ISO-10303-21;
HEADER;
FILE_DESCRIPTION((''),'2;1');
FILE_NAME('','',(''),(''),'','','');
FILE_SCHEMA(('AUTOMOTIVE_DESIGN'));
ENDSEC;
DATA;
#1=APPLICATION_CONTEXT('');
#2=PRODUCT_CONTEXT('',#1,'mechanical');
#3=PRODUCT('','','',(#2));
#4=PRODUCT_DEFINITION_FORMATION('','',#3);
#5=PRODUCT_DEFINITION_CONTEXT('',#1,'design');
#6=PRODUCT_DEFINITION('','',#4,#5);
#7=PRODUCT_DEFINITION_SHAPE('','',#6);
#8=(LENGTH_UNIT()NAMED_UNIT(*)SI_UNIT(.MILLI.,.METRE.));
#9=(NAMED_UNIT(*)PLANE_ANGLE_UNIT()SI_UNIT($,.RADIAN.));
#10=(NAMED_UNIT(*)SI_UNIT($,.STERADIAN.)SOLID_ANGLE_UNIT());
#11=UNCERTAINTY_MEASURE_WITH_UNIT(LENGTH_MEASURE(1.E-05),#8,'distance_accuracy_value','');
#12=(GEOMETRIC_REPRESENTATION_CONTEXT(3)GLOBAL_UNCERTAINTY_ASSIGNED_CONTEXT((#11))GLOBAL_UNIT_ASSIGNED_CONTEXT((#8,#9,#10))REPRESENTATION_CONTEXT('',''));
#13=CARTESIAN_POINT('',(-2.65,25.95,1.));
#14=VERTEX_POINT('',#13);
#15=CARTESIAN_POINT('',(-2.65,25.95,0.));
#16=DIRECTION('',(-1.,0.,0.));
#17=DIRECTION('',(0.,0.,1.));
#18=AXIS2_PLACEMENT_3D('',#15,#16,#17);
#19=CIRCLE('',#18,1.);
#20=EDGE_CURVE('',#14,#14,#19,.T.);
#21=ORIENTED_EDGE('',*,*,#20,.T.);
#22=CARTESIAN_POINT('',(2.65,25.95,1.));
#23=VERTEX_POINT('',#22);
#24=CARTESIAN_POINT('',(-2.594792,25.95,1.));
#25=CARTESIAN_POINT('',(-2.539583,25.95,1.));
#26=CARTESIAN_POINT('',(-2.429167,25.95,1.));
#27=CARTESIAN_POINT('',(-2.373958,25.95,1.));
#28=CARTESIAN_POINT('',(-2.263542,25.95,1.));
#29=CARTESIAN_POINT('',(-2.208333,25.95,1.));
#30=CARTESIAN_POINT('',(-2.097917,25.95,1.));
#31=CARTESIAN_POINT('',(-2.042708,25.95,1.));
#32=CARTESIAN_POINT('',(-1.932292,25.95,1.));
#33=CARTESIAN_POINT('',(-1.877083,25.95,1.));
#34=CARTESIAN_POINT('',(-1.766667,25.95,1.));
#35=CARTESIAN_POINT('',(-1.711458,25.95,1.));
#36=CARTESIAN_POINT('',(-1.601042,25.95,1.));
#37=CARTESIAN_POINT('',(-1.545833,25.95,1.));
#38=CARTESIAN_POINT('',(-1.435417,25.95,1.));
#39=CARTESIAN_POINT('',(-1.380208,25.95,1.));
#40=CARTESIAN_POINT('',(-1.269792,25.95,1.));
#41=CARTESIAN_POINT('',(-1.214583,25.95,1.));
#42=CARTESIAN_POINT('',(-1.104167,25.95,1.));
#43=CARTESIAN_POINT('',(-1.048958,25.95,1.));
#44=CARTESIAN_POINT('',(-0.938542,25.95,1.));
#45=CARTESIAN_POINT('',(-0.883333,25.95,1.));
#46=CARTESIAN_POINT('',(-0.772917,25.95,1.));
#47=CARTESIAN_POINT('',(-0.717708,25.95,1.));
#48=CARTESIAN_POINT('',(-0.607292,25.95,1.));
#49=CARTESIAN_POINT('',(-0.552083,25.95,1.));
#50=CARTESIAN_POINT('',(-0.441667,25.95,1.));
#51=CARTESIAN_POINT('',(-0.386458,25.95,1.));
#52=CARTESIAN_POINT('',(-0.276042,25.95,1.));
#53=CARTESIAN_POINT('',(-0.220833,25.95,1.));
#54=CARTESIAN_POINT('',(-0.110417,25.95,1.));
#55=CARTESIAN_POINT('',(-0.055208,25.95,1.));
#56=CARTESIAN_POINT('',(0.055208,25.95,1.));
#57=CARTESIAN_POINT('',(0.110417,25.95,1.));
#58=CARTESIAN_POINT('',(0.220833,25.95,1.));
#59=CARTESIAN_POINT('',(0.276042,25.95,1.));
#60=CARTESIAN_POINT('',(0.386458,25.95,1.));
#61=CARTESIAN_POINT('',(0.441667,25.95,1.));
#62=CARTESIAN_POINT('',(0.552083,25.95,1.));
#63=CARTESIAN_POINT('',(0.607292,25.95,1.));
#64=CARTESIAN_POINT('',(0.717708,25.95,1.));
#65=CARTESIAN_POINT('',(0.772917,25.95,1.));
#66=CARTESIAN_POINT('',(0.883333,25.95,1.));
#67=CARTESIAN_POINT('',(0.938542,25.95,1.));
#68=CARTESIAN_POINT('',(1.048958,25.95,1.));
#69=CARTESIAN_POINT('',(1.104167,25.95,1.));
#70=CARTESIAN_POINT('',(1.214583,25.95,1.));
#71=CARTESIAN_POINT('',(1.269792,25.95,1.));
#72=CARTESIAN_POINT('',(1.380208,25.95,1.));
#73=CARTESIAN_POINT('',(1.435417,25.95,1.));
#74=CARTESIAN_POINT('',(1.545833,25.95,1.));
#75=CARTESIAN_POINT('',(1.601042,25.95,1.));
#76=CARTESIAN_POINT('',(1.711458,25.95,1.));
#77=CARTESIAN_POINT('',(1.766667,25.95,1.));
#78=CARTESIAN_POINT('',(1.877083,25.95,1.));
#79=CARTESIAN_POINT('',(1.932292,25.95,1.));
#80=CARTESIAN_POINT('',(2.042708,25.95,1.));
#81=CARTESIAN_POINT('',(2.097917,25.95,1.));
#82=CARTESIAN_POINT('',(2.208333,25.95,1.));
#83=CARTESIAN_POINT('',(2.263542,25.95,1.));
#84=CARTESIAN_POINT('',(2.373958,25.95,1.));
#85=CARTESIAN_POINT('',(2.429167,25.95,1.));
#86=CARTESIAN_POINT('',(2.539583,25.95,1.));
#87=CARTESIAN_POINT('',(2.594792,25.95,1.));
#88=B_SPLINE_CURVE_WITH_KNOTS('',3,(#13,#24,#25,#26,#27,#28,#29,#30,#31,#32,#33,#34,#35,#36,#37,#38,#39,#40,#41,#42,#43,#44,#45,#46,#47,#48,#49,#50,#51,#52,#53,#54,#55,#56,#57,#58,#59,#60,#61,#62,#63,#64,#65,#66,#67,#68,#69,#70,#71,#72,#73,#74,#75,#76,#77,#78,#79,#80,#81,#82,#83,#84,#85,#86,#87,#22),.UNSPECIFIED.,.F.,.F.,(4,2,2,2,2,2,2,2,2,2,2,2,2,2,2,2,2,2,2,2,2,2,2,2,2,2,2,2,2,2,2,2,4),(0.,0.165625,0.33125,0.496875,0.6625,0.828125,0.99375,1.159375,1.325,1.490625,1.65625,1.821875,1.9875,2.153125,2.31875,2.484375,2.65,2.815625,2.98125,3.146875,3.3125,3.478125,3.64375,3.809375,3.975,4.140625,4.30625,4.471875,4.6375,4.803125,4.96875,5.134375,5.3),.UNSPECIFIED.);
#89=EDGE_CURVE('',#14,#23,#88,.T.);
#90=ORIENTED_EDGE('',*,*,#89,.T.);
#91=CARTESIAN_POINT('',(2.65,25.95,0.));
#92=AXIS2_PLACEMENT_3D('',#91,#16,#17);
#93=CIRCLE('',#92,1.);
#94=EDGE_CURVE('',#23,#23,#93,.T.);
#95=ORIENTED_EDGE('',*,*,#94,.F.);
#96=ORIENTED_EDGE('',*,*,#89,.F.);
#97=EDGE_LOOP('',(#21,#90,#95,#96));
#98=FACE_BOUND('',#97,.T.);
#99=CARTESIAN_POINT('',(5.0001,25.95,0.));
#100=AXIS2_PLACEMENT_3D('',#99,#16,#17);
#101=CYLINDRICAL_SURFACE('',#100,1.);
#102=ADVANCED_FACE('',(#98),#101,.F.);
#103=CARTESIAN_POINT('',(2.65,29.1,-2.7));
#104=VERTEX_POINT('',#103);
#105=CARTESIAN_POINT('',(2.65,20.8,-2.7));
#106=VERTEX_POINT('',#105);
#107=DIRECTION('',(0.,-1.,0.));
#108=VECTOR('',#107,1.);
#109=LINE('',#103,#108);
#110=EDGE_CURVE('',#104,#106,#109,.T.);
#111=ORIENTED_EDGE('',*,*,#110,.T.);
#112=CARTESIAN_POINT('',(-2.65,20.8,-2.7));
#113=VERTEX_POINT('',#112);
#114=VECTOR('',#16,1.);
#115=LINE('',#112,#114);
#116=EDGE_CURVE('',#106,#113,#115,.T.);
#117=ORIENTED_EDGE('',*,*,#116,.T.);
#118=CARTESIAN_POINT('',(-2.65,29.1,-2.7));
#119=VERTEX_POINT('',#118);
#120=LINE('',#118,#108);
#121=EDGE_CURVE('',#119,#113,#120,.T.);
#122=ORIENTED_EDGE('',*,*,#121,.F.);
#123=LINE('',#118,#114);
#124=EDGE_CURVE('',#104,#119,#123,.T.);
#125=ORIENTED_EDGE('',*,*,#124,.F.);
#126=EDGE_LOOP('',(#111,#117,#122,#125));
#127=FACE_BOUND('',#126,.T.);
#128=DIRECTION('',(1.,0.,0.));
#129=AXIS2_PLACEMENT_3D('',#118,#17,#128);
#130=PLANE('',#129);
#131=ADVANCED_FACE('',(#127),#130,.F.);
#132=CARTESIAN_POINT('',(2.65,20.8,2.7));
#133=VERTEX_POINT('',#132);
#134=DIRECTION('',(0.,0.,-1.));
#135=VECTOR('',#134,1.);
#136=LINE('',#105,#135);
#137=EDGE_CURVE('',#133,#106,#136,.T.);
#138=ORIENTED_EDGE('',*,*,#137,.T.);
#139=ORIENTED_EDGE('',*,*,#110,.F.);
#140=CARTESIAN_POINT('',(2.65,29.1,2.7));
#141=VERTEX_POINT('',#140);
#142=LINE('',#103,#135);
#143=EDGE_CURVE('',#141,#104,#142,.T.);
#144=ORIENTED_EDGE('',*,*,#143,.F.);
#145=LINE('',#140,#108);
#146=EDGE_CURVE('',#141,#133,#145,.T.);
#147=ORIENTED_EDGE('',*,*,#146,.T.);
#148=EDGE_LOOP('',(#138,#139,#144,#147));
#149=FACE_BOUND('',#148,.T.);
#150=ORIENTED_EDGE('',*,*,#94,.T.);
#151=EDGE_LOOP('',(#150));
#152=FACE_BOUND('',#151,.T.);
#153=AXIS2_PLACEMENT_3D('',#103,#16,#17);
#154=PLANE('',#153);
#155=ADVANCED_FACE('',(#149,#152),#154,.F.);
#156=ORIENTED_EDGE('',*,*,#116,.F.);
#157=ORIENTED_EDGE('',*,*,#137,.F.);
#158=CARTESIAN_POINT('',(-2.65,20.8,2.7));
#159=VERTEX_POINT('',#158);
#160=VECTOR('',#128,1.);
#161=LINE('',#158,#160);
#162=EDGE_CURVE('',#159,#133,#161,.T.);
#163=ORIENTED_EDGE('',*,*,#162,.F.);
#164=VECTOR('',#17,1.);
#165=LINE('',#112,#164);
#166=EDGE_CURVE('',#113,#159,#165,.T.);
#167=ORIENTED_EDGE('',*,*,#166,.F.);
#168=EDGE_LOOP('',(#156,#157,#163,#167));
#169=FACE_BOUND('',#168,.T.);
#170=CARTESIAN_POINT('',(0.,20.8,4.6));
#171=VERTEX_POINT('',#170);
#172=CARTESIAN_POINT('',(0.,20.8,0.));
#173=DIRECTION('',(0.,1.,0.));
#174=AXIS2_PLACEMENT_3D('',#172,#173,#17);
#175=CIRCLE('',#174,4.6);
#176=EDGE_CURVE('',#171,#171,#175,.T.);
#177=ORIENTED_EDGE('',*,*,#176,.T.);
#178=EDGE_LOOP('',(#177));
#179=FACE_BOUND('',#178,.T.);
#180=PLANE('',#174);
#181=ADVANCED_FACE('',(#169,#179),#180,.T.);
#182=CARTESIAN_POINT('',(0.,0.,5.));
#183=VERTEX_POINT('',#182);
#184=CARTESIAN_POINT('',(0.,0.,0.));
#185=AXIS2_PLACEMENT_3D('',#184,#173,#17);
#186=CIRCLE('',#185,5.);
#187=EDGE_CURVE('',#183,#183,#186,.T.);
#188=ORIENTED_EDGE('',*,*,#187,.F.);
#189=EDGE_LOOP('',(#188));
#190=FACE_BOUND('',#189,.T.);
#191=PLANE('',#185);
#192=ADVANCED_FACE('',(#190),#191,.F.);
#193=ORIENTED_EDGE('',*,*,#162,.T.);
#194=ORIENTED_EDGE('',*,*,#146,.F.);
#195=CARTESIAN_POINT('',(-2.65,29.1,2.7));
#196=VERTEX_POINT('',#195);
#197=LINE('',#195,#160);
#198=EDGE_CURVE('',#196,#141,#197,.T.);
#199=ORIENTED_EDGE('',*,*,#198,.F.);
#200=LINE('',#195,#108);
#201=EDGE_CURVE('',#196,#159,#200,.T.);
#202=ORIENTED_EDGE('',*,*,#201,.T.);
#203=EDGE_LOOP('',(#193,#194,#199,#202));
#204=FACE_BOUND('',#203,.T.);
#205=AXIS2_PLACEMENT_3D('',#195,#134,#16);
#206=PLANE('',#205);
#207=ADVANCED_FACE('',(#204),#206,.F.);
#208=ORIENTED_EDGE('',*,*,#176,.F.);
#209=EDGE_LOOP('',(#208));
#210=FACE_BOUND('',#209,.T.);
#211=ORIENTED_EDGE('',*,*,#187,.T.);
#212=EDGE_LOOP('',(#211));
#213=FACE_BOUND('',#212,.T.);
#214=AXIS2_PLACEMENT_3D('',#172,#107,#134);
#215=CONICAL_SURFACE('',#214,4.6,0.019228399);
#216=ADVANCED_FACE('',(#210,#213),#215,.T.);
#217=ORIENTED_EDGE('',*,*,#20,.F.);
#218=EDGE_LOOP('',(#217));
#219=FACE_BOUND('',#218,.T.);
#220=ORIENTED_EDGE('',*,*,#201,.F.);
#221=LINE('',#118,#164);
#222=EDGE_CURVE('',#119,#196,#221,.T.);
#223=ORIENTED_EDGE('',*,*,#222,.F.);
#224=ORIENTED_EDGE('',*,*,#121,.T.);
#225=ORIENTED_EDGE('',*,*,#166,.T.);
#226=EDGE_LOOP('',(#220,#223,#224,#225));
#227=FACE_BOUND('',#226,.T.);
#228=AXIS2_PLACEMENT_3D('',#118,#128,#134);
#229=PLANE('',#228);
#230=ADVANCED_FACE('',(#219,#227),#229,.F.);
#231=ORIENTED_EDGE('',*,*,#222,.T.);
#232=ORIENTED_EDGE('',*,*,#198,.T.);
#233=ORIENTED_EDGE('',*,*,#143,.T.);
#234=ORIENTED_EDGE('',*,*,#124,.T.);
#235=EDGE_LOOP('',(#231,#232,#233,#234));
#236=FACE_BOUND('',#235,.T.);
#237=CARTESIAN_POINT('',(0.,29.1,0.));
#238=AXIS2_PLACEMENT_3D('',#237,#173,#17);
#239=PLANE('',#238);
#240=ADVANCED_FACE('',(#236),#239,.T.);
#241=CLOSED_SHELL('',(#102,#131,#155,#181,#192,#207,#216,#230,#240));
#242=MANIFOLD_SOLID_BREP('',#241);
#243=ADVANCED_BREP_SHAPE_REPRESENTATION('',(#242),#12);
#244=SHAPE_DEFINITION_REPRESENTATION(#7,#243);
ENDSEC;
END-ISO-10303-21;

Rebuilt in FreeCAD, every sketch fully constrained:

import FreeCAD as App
import Part
import Sketcher


def add_polygon(sketch, points):
    """Adds a closed chain of lines whose ends are joined by coincident constraints."""
    first, n = sketch.GeometryCount, len(points)
    for a, b in zip(points, points[1:] + points[:1]):
        sketch.addGeometry(Part.LineSegment(App.Vector(*a, 0), App.Vector(*b, 0)), False)
    for i in range(n):
        sketch.addConstraint(Sketcher.Constraint("Coincident", first + i, 2, first + (i + 1) % n, 1))

doc = App.newDocument("Part")
params = doc.addObject("Spreadsheet::Sheet", "Params")
for row, (alias, value) in enumerate([
    ("sketch1_diameter", "10 mm"),
    ("sketch2_diameter", "9.2 mm"),
    ("sketch3_width", "5.3 mm"),
    ("sketch3_height", "5.4 mm"),
    ("pad1_length", "8.3 mm"),
    ("sketch4_diameter", "2 mm"),
], start=1):
    params.set(f"A{row}", alias)
    params.set(f"B{row}", "=" + value)
    params.setAlias(f"B{row}", alias)

body = doc.addObject("PartDesign::Body", "Body")

sketch1 = body.newObject("Sketcher::SketchObject", "Sketch")
sketch1.AttachmentSupport = (doc.getObject("XZ_Plane"), [""])
sketch1.MapMode = "FlatFace"
sketch1.addGeometry(Part.Circle(App.Vector(0, 0, 0), App.Vector(0, 0, 1), 5), False)
sketch1.addConstraint([
    Sketcher.Constraint("Coincident", 0, 3, -1, 1),
    Sketcher.Constraint("Diameter", 0, 10.0),
])
sketch1.setExpression("Constraints[1]", "Params.sketch1_diameter")

sketch2 = body.newObject("Sketcher::SketchObject", "Sketch001")
sketch2.AttachmentSupport = (doc.getObject("XZ_Plane"), [""])
sketch2.MapMode = "FlatFace"
sketch2.AttachmentOffset = App.Placement(App.Vector(0, 0, -20.8), App.Rotation())
sketch2.addGeometry(Part.Circle(App.Vector(0, 0, 0), App.Vector(0, 0, 1), 4.6), False)
sketch2.addConstraint([
    Sketcher.Constraint("Coincident", 0, 3, -1, 1),
    Sketcher.Constraint("Diameter", 0, 9.2),
])
sketch2.setExpression("Constraints[1]", "Params.sketch2_diameter")

additiveloft = body.newObject("PartDesign::AdditiveLoft", "AdditiveLoft")
additiveloft.Profile = sketch1
additiveloft.Sections = [sketch2]

sketch3 = body.newObject("Sketcher::SketchObject", "Sketch002")
sketch3.AttachmentSupport = (doc.getObject("XZ_Plane"), [""])
sketch3.MapMode = "FlatFace"
sketch3.AttachmentOffset = App.Placement(App.Vector(0, 0, -20.8), App.Rotation())
add_polygon(sketch3, [(-3, -3), (-3, 3), (3, 3), (3, -3)])
sketch3.addConstraint([
    Sketcher.Constraint("Vertical", 0),
    Sketcher.Constraint("Horizontal", 1),
    Sketcher.Constraint("Vertical", 2),
    Sketcher.Constraint("Horizontal", 3),
    Sketcher.Constraint("Symmetric", 0, 2, 2, 2, -1, 1),
    Sketcher.Constraint("DistanceX", 1, 1, 1, 2, 5.3),
    Sketcher.Constraint("DistanceY", 0, 1, 0, 2, 5.4),
])
sketch3.setExpression("Constraints[9]", "Params.sketch3_width")
sketch3.setExpression("Constraints[10]", "Params.sketch3_height")
pad1 = body.newObject("PartDesign::Pad", "Pad")
pad1.Profile = sketch3
pad1.setExpression("Length", "Params.pad1_length")
pad1.Reversed = True

sketch4 = body.newObject("Sketcher::SketchObject", "Sketch003")
sketch4.AttachmentSupport = (doc.getObject("YZ_Plane"), [""])
sketch4.MapMode = "FlatFace"
sketch4.AttachmentOffset = App.Placement(App.Vector(0, 0, -2.65), App.Rotation())
sketch4.addGeometry(Part.Circle(App.Vector(25.9, 0, 0), App.Vector(0, 0, 1), 1), False)
sketch4.addConstraint([
    Sketcher.Constraint("PointOnObject", 0, 3, -1),
    Sketcher.Constraint("Diameter", 0, 2.0),
    Sketcher.Constraint("DistanceX", -1, 1, 0, 3, 25.95),
])
sketch4.setExpression("Constraints[1]", "Params.sketch4_diameter")
pocket1 = body.newObject("PartDesign::Pocket", "Pocket")
pocket1.Profile = sketch4
pocket1.Type = "ThroughAll"
pocket1.Reversed = True

doc.recompute()
